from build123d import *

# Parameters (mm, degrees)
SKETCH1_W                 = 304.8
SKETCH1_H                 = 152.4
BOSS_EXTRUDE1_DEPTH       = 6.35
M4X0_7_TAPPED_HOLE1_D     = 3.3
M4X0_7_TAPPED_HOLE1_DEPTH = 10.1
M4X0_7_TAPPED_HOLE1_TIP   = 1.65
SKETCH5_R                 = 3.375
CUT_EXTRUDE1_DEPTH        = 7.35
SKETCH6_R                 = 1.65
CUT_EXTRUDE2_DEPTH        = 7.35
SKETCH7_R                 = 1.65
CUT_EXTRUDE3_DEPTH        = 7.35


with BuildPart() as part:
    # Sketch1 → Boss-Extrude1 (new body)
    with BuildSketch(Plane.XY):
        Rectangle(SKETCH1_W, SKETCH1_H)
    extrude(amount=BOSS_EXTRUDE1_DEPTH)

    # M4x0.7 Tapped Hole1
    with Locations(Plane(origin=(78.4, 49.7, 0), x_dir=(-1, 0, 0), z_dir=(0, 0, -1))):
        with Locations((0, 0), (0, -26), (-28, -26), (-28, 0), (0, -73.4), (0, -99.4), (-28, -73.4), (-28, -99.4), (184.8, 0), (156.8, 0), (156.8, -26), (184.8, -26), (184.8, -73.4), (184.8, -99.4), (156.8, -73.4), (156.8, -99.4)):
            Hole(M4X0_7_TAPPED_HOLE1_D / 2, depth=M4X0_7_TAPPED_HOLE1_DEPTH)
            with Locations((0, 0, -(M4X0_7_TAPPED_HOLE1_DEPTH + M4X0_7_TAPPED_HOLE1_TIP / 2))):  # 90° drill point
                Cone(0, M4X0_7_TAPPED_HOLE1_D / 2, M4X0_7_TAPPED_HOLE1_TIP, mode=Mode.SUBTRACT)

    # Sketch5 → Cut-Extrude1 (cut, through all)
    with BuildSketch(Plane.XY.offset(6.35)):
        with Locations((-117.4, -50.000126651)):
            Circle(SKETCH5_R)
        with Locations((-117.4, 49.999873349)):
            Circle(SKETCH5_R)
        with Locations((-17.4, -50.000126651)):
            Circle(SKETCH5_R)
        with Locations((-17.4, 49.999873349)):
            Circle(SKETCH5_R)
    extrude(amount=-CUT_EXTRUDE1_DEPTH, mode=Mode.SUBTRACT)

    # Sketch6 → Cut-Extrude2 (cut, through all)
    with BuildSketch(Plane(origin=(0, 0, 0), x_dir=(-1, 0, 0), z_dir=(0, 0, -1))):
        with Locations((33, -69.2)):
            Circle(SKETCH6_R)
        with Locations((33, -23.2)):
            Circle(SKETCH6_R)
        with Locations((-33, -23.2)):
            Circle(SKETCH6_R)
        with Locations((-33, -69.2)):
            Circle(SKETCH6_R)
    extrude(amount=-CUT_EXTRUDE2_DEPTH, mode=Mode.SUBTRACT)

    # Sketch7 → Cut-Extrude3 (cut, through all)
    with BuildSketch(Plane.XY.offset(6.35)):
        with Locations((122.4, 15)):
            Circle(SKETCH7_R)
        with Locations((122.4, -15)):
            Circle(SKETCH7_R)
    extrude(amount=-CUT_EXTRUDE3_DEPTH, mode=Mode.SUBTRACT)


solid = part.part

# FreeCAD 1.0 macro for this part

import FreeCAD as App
import Part
import Sketcher
from FreeCAD import Vector
Q = App.Units.Quantity

doc = App.newDocument("Part")
body = doc.addObject("PartDesign::Body", "Body")

# Sketch on XY plane
sketch1 = body.newObject("Sketcher::SketchObject", "Sketch")
sketch1.AttachmentSupport = (doc.getObject("XY_Plane"), [""])
sketch1.MapMode = "FlatFace"
sketch1.addGeometry([
    Part.LineSegment(Vector(-152, 76, 0), Vector(-152, -76, 0)),
    Part.LineSegment(Vector(-152, -76, 0), Vector(152, -76, 0)),
    Part.LineSegment(Vector(152, -76, 0), Vector(152, 76, 0)),
    Part.LineSegment(Vector(152, 76, 0), Vector(-152, 76, 0)),
], False)
sketch1.addConstraint([
    Sketcher.Constraint("Coincident", 0, 2, 1, 1),
    Sketcher.Constraint("Coincident", 1, 2, 2, 1),
    Sketcher.Constraint("Coincident", 2, 2, 3, 1),
    Sketcher.Constraint("Coincident", 3, 2, 0, 1),
    Sketcher.Constraint("Vertical", 0),
    Sketcher.Constraint("Horizontal", 1),
    Sketcher.Constraint("Vertical", 2),
    Sketcher.Constraint("Horizontal", 3),
    Sketcher.Constraint("Symmetric", 0, 2, 2, 2, -1, 1),
    Sketcher.Constraint("DistanceX", 1, 1, 1, 2, Q("12 in")),
    Sketcher.Constraint("DistanceY", 0, 2, 0, 1, Q("6 in")),
])
pad1 = body.newObject("PartDesign::Pad", "Pad")
pad1.Profile = sketch1
pad1.Length = Q("0.25 in")

# Sketch on XY plane
sketch2 = body.newObject("Sketcher::SketchObject", "Sketch001")
sketch2.AttachmentSupport = (doc.getObject("XY_Plane"), [""])
sketch2.MapMode = "FlatFace"
sketch2.addGeometry([
    Part.Circle(Vector(78.4, 49.7, 0), Vector(0, 0, 1), 1.6),  # 0
    Part.Circle(Vector(78.4, 23.7, 0), Vector(0, 0, 1), 1.6),  # 1
    Part.Circle(Vector(106.4, 23.7, 0), Vector(0, 0, 1), 1.6),  # 2
    Part.Circle(Vector(106.4, 49.7, 0), Vector(0, 0, 1), 1.6),  # 3
    Part.Circle(Vector(78.4, -23.7, 0), Vector(0, 0, 1), 1.6),  # 4
    Part.Circle(Vector(78.4, -49.7, 0), Vector(0, 0, 1), 1.6),  # 5
    Part.Circle(Vector(106.4, -23.7, 0), Vector(0, 0, 1), 1.6),  # 6
    Part.Circle(Vector(106.4, -49.7, 0), Vector(0, 0, 1), 1.6),  # 7
    Part.Circle(Vector(-106.4, 49.7, 0), Vector(0, 0, 1), 1.6),  # 8
    Part.Circle(Vector(-78.4, 49.7, 0), Vector(0, 0, 1), 1.6),  # 9
    Part.Circle(Vector(-78.4, 23.7, 0), Vector(0, 0, 1), 1.6),  # 10
    Part.Circle(Vector(-106.4, 23.7, 0), Vector(0, 0, 1), 1.6),  # 11
    Part.Circle(Vector(-106.4, -23.7, 0), Vector(0, 0, 1), 1.6),  # 12
    Part.Circle(Vector(-106.4, -49.7, 0), Vector(0, 0, 1), 1.6),  # 13
    Part.Circle(Vector(-78.4, -23.7, 0), Vector(0, 0, 1), 1.6),  # 14
    Part.Circle(Vector(-78.4, -49.7, 0), Vector(0, 0, 1), 1.6),  # 15
], False)
sketch2.addConstraint([
    Sketcher.Constraint("Equal", 0, 1),
    Sketcher.Constraint("Equal", 1, 2),
    Sketcher.Constraint("Equal", 2, 3),
    Sketcher.Constraint("Equal", 3, 4),
    Sketcher.Constraint("Equal", 4, 5),
    Sketcher.Constraint("Equal", 5, 6),
    Sketcher.Constraint("Equal", 6, 7),
    Sketcher.Constraint("Equal", 7, 8),
    Sketcher.Constraint("Equal", 8, 9),
    Sketcher.Constraint("Equal", 9, 10),
    Sketcher.Constraint("Equal", 10, 11),
    Sketcher.Constraint("Equal", 11, 12),
    Sketcher.Constraint("Equal", 12, 13),
    Sketcher.Constraint("Equal", 13, 14),
    Sketcher.Constraint("Equal", 14, 15),
    Sketcher.Constraint("Symmetric", 7, 3, 8, 3, -1, 1),
    Sketcher.Constraint("Symmetric", 5, 3, 9, 3, -1, 1),
    Sketcher.Constraint("Symmetric", 4, 3, 10, 3, -1, 1),
    Sketcher.Constraint("Symmetric", 6, 3, 11, 3, -1, 1),
    Sketcher.Constraint("Symmetric", 2, 3, 12, 3, -1, 1),
    Sketcher.Constraint("Symmetric", 3, 3, 13, 3, -1, 1),
    Sketcher.Constraint("Symmetric", 1, 3, 14, 3, -1, 1),
    Sketcher.Constraint("Symmetric", 0, 3, 15, 3, -1, 1),
    Sketcher.Constraint("Symmetric", 3, 3, 8, 3, -2),
    Sketcher.Constraint("Symmetric", 0, 3, 9, 3, -2),
    Sketcher.Constraint("Symmetric", 1, 3, 10, 3, -2),
    Sketcher.Constraint("Symmetric", 2, 3, 11, 3, -2),
    Sketcher.Constraint("Horizontal", 1, 3, 2, 3),
    Sketcher.Constraint("Horizontal", 0, 3, 3, 3),
    Sketcher.Constraint("Vertical", 0, 3, 1, 3),
    Sketcher.Constraint("Vertical", 2, 3, 3, 3),
    Sketcher.Constraint("Diameter", 0, 3.3),
    Sketcher.Constraint("DistanceX", -1, 1, 0, 3, 78.4),
    Sketcher.Constraint("DistanceY", -1, 1, 0, 3, 49.7),
    Sketcher.Constraint("DistanceY", -1, 1, 1, 3, 23.7),
    Sketcher.Constraint("DistanceX", -1, 1, 2, 3, 106.4),
])
doc.recompute()
hole = body.newObject("PartDesign::Hole", "Hole")
hole.Profile = sketch2
hole.ThreadType = "None"
hole.Diameter = 3.3
hole.DepthType = "Dimension"
hole.Depth = 10.1
hole.DrillPoint = "Angled"
hole.DrillPointAngle = 90
hole.Reversed = True

# Sketch on XY plane
sketch3 = body.newObject("Sketcher::SketchObject", "Sketch002")
sketch3.AttachmentSupport = (doc.getObject("XY_Plane"), [""])
sketch3.MapMode = "FlatFace"
sketch3.AttachmentOffset = App.Placement(Vector(0, 0, 0.25 * 25.4), App.Rotation())
sketch3.addGeometry([
    Part.Circle(Vector(-117.4, -50, 0), Vector(0, 0, 1), 3.4),
    Part.Circle(Vector(-117.4, 50, 0), Vector(0, 0, 1), 3.4),
    Part.Circle(Vector(-17.4, -50, 0), Vector(0, 0, 1), 3.4),
    Part.Circle(Vector(-17.4, 50, 0), Vector(0, 0, 1), 3.4),
], False)
sketch3.addConstraint([
    Sketcher.Constraint("Equal", 0, 1),
    Sketcher.Constraint("Equal", 1, 2),
    Sketcher.Constraint("Equal", 2, 3),
    Sketcher.Constraint("Horizontal", 0, 3, 2, 3),
    Sketcher.Constraint("Horizontal", 1, 3, 3, 3),
    Sketcher.Constraint("Vertical", 0, 3, 1, 3),
    Sketcher.Constraint("Vertical", 2, 3, 3, 3),
    Sketcher.Constraint("Diameter", 0, 6.75),
    Sketcher.Constraint("DistanceX", 0, 3, -1, 1, 117.4),
    Sketcher.Constraint("DistanceX", 2, 3, -1, 1, 17.4),
    Sketcher.Constraint("DistanceY", 0, 3, 1, 3, 100.0),
    Sketcher.Constraint("DistanceY", 0, 3, -1, 1, 50.000127),
])
pocket1 = body.newObject("PartDesign::Pocket", "Pocket")
pocket1.Profile = sketch3
pocket1.Type = "ThroughAll"

# Sketch on XY plane
sketch4 = body.newObject("Sketcher::SketchObject", "Sketch003")
sketch4.AttachmentSupport = (doc.getObject("XY_Plane"), [""])
sketch4.MapMode = "FlatFace"
sketch4.addGeometry([
    Part.Circle(Vector(-33, -69.2, 0), Vector(0, 0, 1), 1.6),
    Part.Circle(Vector(-33, -23.2, 0), Vector(0, 0, 1), 1.6),
    Part.Circle(Vector(33, -23.2, 0), Vector(0, 0, 1), 1.6),
    Part.Circle(Vector(33, -69.2, 0), Vector(0, 0, 1), 1.6),
], False)
sketch4.addConstraint([
    Sketcher.Constraint("Equal", 0, 1),
    Sketcher.Constraint("Equal", 1, 2),
    Sketcher.Constraint("Equal", 2, 3),
    Sketcher.Constraint("Symmetric", 1, 3, 2, 3, -2),
    Sketcher.Constraint("Symmetric", 0, 3, 3, 3, -2),
    Sketcher.Constraint("Vertical", 0, 3, 1, 3),
    Sketcher.Constraint("Diameter", 0, 3.3),
    Sketcher.Constraint("DistanceX", 0, 3, -1, 1, 33.0),
    Sketcher.Constraint("DistanceY", 0, 3, -1, 1, 69.2),
    Sketcher.Constraint("DistanceY", 1, 3, -1, 1, 23.2),
])
pocket2 = body.newObject("PartDesign::Pocket", "Pocket001")
pocket2.Profile = sketch4
pocket2.Type = "ThroughAll"
pocket2.Reversed = True

# Sketch on XY plane
sketch5 = body.newObject("Sketcher::SketchObject", "Sketch004")
sketch5.AttachmentSupport = (doc.getObject("XY_Plane"), [""])
sketch5.MapMode = "FlatFace"
sketch5.AttachmentOffset = App.Placement(Vector(0, 0, 0.25 * 25.4), App.Rotation())
sketch5.addGeometry([
    Part.Circle(Vector(122.4, 15, 0), Vector(0, 0, 1), 1.6),
    Part.Circle(Vector(122.4, -15, 0), Vector(0, 0, 1), 1.6),
], False)
sketch5.addConstraint([
    Sketcher.Constraint("Equal", 0, 1),
    Sketcher.Constraint("Symmetric", 0, 3, 1, 3, -1),
    Sketcher.Constraint("Diameter", 0, 3.3),
    Sketcher.Constraint("DistanceX", -1, 1, 0, 3, 122.4),
    Sketcher.Constraint("DistanceY", -1, 1, 0, 3, 15.0),
])
pocket3 = body.newObject("PartDesign::Pocket", "Pocket002")
pocket3.Profile = sketch5
pocket3.Type = "ThroughAll"

doc.recompute()
